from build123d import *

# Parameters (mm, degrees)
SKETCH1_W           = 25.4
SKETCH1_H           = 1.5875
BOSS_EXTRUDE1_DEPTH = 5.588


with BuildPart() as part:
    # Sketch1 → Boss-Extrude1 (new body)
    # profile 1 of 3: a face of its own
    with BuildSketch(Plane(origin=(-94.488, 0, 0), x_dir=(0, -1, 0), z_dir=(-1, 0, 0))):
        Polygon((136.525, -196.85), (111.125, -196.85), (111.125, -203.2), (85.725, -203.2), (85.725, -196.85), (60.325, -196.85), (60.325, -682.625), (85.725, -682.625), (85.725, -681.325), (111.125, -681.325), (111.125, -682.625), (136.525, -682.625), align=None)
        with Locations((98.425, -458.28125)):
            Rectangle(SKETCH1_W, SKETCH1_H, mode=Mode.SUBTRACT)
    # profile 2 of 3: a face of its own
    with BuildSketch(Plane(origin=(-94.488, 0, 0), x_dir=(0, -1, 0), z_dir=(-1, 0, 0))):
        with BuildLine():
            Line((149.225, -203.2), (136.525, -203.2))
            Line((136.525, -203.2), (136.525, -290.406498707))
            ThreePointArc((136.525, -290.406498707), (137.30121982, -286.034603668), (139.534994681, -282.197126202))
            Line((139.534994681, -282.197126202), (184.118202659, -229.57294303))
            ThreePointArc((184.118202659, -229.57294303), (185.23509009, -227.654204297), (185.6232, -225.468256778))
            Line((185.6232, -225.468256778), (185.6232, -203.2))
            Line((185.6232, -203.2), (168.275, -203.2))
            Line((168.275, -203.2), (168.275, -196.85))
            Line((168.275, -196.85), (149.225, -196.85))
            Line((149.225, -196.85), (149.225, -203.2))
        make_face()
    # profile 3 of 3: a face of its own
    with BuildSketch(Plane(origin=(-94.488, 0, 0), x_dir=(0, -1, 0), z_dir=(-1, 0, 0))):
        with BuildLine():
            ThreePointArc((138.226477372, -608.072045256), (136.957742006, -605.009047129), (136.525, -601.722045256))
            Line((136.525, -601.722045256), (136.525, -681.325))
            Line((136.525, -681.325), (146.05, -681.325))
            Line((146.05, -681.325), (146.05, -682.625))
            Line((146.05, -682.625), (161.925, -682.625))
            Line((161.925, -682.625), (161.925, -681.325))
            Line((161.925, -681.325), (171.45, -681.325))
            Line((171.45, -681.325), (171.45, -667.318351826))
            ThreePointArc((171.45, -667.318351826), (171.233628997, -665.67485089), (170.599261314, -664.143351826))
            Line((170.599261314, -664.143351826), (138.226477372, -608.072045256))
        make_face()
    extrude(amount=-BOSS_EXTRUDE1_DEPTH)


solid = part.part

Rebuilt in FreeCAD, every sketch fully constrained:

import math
import FreeCAD as App
import Part
import Sketcher
from FreeCAD import Vector
Q = App.Units.Quantity

doc = App.newDocument("Part")
params = doc.addObject("Spreadsheet::Sheet", "Params")
for row, (alias, value) in enumerate([
    ("sketch1_radius", "0.5 in"),
    ("sketch1_width", "1 in"),
    ("sketch1_radius2", "0.25 in"),
    ("sketch1_width2", "0.75 in"),
    ("sketch1_height", "0.25 in"),
    ("pad1_length", "0.22 in"),
], start=1):
    params.set(f"A{row}", alias)
    params.set(f"B{row}", "=" + value)
    params.setAlias(f"B{row}", alias)

body = doc.addObject("PartDesign::Body", "Body")

# Sketch on YZ plane
sketch1 = body.newObject("Sketcher::SketchObject", "Sketch")
sketch1.AttachmentSupport = (doc.getObject("YZ_Plane"), [""])
sketch1.MapMode = "FlatFace"
sketch1.AttachmentOffset = App.Placement(Vector(0, 0, -3.72 * 25.4), App.Rotation())
sketch1.addGeometry([
    Part.LineSegment(Vector(-136.525, -196.85, 0), Vector(-111.125, -196.85, 0)),  # 0
    Part.LineSegment(Vector(-111.125, -196.85, 0), Vector(-111.125, -203.2, 0)),  # 1
    Part.LineSegment(Vector(-111.125, -203.2, 0), Vector(-85.725, -203.2, 0)),  # 2
    Part.LineSegment(Vector(-85.725, -203.2, 0), Vector(-85.725, -196.85, 0)),  # 3
    Part.LineSegment(Vector(-85.725, -196.85, 0), Vector(-60.325, -196.85, 0)),  # 4
    Part.LineSegment(Vector(-60.325, -196.85, 0), Vector(-60.325, -682.625, 0)),  # 5
    Part.LineSegment(Vector(-60.325, -682.625, 0), Vector(-85.725, -682.625, 0)),  # 6
    Part.LineSegment(Vector(-85.725, -682.625, 0), Vector(-85.725, -681.325, 0)),  # 7
    Part.LineSegment(Vector(-85.725, -681.325, 0), Vector(-111.125, -681.325, 0)),  # 8
    Part.LineSegment(Vector(-111.125, -681.325, 0), Vector(-111.125, -682.625, 0)),  # 9
    Part.LineSegment(Vector(-111.125, -682.625, 0), Vector(-136.525, -682.625, 0)),  # 10
    Part.LineSegment(Vector(-136.525, -682.625, 0), Vector(-136.525, -681.325, 0)),  # 11
    Part.LineSegment(Vector(-136.525, -681.325, 0), Vector(-146.05, -681.325, 0)),  # 12
    Part.LineSegment(Vector(-146.05, -681.325, 0), Vector(-146.05, -682.625, 0)),  # 13
    Part.LineSegment(Vector(-146.05, -682.625, 0), Vector(-161.925, -682.625, 0)),  # 14
    Part.LineSegment(Vector(-161.925, -682.625, 0), Vector(-161.925, -681.325, 0)),  # 15
    Part.LineSegment(Vector(-161.925, -681.325, 0), Vector(-171.45, -681.325, 0)),  # 16
    Part.LineSegment(Vector(-171.45, -681.325, 0), Vector(-171.45, -667.318352, 0)),  # 17
    Part.ArcOfCircle(Part.Circle(Vector(-165.1, -667.318352, 0), Vector(0, 0, 1), 6.35), math.radians(150), math.radians(180)),  # 18
    Part.LineSegment(Vector(-170.599261, -664.143352, 0), Vector(-138.226477, -608.072045, 0)),  # 19
    Part.ArcOfCircle(Part.Circle(Vector(-149.225, -601.722045, 0), Vector(0, 0, 1), 12.7), math.radians(-30), math.radians(0)),  # 20
    Part.LineSegment(Vector(-136.525, -601.722045, 0), Vector(-136.525, -290.406499, 0)),  # 21
    Part.ArcOfCircle(Part.Circle(Vector(-149.225, -290.406499, 0), Vector(0, 0, 1), 12.7), math.radians(0), math.radians(40.271271)),  # 22
    Part.LineSegment(Vector(-139.534995, -282.197126, 0), Vector(-184.118203, -229.572943, 0)),  # 23
    Part.ArcOfCircle(Part.Circle(Vector(-179.2732, -225.468257, 0), Vector(0, 0, 1), 6.35), math.radians(180), math.radians(220.271271)),  # 24
    Part.LineSegment(Vector(-185.6232, -225.468257, 0), Vector(-185.6232, -203.2, 0)),  # 25
    Part.LineSegment(Vector(-185.6232, -203.2, 0), Vector(-168.275, -203.2, 0)),  # 26
    Part.LineSegment(Vector(-168.275, -203.2, 0), Vector(-168.275, -196.85, 0)),  # 27
    Part.LineSegment(Vector(-168.275, -196.85, 0), Vector(-149.225, -196.85, 0)),  # 28
    Part.LineSegment(Vector(-149.225, -196.85, 0), Vector(-149.225, -203.2, 0)),  # 29
    Part.LineSegment(Vector(-149.225, -203.2, 0), Vector(-136.525, -203.2, 0)),  # 30
    Part.LineSegment(Vector(-136.525, -203.2, 0), Vector(-136.525, -196.85, 0)),  # 31
    Part.LineSegment(Vector(-111.125, -459.075, 0), Vector(-85.725, -459.075, 0)),  # 32
    Part.LineSegment(Vector(-85.725, -459.075, 0), Vector(-85.725, -457.4875, 0)),  # 33
    Part.LineSegment(Vector(-85.725, -457.4875, 0), Vector(-111.125, -457.4875, 0)),  # 34
    Part.LineSegment(Vector(-111.125, -457.4875, 0), Vector(-111.125, -459.075, 0)),  # 35
], False)
sketch1.addConstraint([
    Sketcher.Constraint("Coincident", 0, 2, 1, 1),
    Sketcher.Constraint("Coincident", 1, 2, 2, 1),
    Sketcher.Constraint("Coincident", 2, 2, 3, 1),
    Sketcher.Constraint("Coincident", 3, 2, 4, 1),
    Sketcher.Constraint("Coincident", 4, 2, 5, 1),
    Sketcher.Constraint("Coincident", 5, 2, 6, 1),
    Sketcher.Constraint("Coincident", 6, 2, 7, 1),
    Sketcher.Constraint("Coincident", 7, 2, 8, 1),
    Sketcher.Constraint("Coincident", 8, 2, 9, 1),
    Sketcher.Constraint("Coincident", 9, 2, 10, 1),
    Sketcher.Constraint("Coincident", 10, 2, 11, 1),
    Sketcher.Constraint("Coincident", 11, 2, 12, 1),
    Sketcher.Constraint("Coincident", 12, 2, 13, 1),
    Sketcher.Constraint("Coincident", 13, 2, 14, 1),
    Sketcher.Constraint("Coincident", 14, 2, 15, 1),
    Sketcher.Constraint("Coincident", 15, 2, 16, 1),
    Sketcher.Constraint("Coincident", 16, 2, 17, 1),
    Sketcher.Constraint("Tangent", 17, 2, 18, 2),
    Sketcher.Constraint("Tangent", 18, 1, 19, 1),
    Sketcher.Constraint("Tangent", 19, 2, 20, 1),
    Sketcher.Constraint("Tangent", 20, 2, 21, 1),
    Sketcher.Constraint("Tangent", 21, 2, 22, 1),
    Sketcher.Constraint("Tangent", 22, 2, 23, 1),
    Sketcher.Constraint("Tangent", 23, 2, 24, 2),
    Sketcher.Constraint("Tangent", 24, 1, 25, 1),
    Sketcher.Constraint("Coincident", 25, 2, 26, 1),
    Sketcher.Constraint("Coincident", 26, 2, 27, 1),
    Sketcher.Constraint("Coincident", 27, 2, 28, 1),
    Sketcher.Constraint("Coincident", 28, 2, 29, 1),
    Sketcher.Constraint("Coincident", 29, 2, 30, 1),
    Sketcher.Constraint("Coincident", 30, 2, 31, 1),
    Sketcher.Constraint("Coincident", 31, 2, 0, 1),
    Sketcher.Constraint("Coincident", 32, 2, 33, 1),
    Sketcher.Constraint("Coincident", 33, 2, 34, 1),
    Sketcher.Constraint("Coincident", 34, 2, 35, 1),
    Sketcher.Constraint("Coincident", 35, 2, 32, 1),
    Sketcher.Constraint("Horizontal", 0),
    Sketcher.Constraint("Vertical", 1),
    Sketcher.Constraint("Horizontal", 2),
    Sketcher.Constraint("Vertical", 3),
    Sketcher.Constraint("Horizontal", 4),
    Sketcher.Constraint("Vertical", 5),
    Sketcher.Constraint("Horizontal", 6),
    Sketcher.Constraint("Vertical", 7),
    Sketcher.Constraint("Horizontal", 8),
    Sketcher.Constraint("Vertical", 9),
    Sketcher.Constraint("Horizontal", 10),
    Sketcher.Constraint("Vertical", 11),
    Sketcher.Constraint("Horizontal", 12),
    Sketcher.Constraint("Vertical", 13),
    Sketcher.Constraint("Horizontal", 14),
    Sketcher.Constraint("Vertical", 15),
    Sketcher.Constraint("Horizontal", 16),
    Sketcher.Constraint("Vertical", 17),
    Sketcher.Constraint("Vertical", 21),
    Sketcher.Constraint("Vertical", 25),
    Sketcher.Constraint("Horizontal", 26),
    Sketcher.Constraint("Vertical", 27),
    Sketcher.Constraint("Horizontal", 28),
    Sketcher.Constraint("Vertical", 29),
    Sketcher.Constraint("Horizontal", 30),
    Sketcher.Constraint("Vertical", 31),
    Sketcher.Constraint("Horizontal", 32),
    Sketcher.Constraint("Vertical", 33),
    Sketcher.Constraint("Horizontal", 34),
    Sketcher.Constraint("Vertical", 35),
    Sketcher.Constraint("Equal", 20, 22),
    Sketcher.Constraint("Equal", 18, 24),
    Sketcher.Constraint("Horizontal", 0, 2, 3, 2),
    Sketcher.Constraint("Horizontal", 6, 2, 9, 2),
    Sketcher.Constraint("Horizontal", 8, 2, 11, 2),
    Sketcher.Constraint("Horizontal", 10, 2, 13, 2),
    Sketcher.Constraint("Horizontal", 12, 2, 15, 2),
    Sketcher.Constraint("Horizontal", 2, 2, 25, 2),
    Sketcher.Constraint("Horizontal", 4, 2, 27, 2),
    Sketcher.Constraint("Horizontal", 26, 2, 29, 2),
    Sketcher.Constraint("Vertical", 3, 2, 6, 2),
    Sketcher.Constraint("Vertical", 1, 2, 8, 2),
    Sketcher.Constraint("Vertical", 11, 2, 20, 2),
    Sketcher.Constraint("Vertical", 22, 3, 28, 2),
    Sketcher.Constraint("Vertical", 21, 2, 30, 2),
    Sketcher.Constraint("Vertical", 7, 2, 32, 2),
    Sketcher.Constraint("Vertical", 9, 2, 34, 2),
    Sketcher.Constraint("Equal", 0, 2),
    Sketcher.Constraint("Equal", 2, 4),
    Sketcher.Constraint("Equal", 12, 16),
    Sketcher.Constraint("Radius", 20, Q("0.5 in")),
    Sketcher.Constraint("DistanceX", 0, 1, 0, 2, Q("1 in")),
    Sketcher.Constraint("Radius", 18, Q("0.25 in")),
    Sketcher.Constraint("DistanceY", 1, 2, -1, 1, Q("8 in")),
    Sketcher.Constraint("Angle", 19, Q("60 deg")),
    Sketcher.Constraint("DistanceX", 14, 2, 10, 2, Q("1 in")),
    Sketcher.Constraint("DistanceX", 28, 1, 28, 2, Q("0.75 in")),
    Sketcher.Constraint("DistanceY", 1, 2, 1, 1, Q("0.25 in")),
    Sketcher.Constraint("DistanceX", 18, 3, -1, 1, Q("6.5 in")),
    Sketcher.Constraint("DistanceX", 12, 2, 12, 1, Q("0.375 in")),
    Sketcher.Constraint("DistanceX", 26, 1, 26, 2, Q("0.683 in")),
    Sketcher.Constraint("DistanceY", 5, 2, 5, 1, Q("19.125 in")),
    Sketcher.Constraint("DistanceY", 33, 1, 33, 2, Q("0.0625 in")),
    Sketcher.Constraint("DistanceY", 7, 1, 7, 2, 1.3),
    Sketcher.Constraint("DistanceY", 17, 1, 17, 2, 14.006648),
    Sketcher.Constraint("DistanceY", 22, 3, -1, 1, 290.406499),
    Sketcher.Constraint("DistanceY", 32, 2, -1, 1, 459.075),
    Sketcher.Constraint("Distance", 23, 68.97077),
])
sketch1.setExpression("Constraints[86]", "Params.sketch1_radius")
sketch1.setExpression("Constraints[87]", "Params.sketch1_width")
sketch1.setExpression("Constraints[88]", "Params.sketch1_radius2")
sketch1.setExpression("Constraints[92]", "Params.sketch1_width2")
sketch1.setExpression("Constraints[93]", "Params.sketch1_height")
pad1 = body.newObject("PartDesign::Pad", "Pad")
pad1.Profile = sketch1
pad1.setExpression("Length", "Params.pad1_length")

doc.recompute()
